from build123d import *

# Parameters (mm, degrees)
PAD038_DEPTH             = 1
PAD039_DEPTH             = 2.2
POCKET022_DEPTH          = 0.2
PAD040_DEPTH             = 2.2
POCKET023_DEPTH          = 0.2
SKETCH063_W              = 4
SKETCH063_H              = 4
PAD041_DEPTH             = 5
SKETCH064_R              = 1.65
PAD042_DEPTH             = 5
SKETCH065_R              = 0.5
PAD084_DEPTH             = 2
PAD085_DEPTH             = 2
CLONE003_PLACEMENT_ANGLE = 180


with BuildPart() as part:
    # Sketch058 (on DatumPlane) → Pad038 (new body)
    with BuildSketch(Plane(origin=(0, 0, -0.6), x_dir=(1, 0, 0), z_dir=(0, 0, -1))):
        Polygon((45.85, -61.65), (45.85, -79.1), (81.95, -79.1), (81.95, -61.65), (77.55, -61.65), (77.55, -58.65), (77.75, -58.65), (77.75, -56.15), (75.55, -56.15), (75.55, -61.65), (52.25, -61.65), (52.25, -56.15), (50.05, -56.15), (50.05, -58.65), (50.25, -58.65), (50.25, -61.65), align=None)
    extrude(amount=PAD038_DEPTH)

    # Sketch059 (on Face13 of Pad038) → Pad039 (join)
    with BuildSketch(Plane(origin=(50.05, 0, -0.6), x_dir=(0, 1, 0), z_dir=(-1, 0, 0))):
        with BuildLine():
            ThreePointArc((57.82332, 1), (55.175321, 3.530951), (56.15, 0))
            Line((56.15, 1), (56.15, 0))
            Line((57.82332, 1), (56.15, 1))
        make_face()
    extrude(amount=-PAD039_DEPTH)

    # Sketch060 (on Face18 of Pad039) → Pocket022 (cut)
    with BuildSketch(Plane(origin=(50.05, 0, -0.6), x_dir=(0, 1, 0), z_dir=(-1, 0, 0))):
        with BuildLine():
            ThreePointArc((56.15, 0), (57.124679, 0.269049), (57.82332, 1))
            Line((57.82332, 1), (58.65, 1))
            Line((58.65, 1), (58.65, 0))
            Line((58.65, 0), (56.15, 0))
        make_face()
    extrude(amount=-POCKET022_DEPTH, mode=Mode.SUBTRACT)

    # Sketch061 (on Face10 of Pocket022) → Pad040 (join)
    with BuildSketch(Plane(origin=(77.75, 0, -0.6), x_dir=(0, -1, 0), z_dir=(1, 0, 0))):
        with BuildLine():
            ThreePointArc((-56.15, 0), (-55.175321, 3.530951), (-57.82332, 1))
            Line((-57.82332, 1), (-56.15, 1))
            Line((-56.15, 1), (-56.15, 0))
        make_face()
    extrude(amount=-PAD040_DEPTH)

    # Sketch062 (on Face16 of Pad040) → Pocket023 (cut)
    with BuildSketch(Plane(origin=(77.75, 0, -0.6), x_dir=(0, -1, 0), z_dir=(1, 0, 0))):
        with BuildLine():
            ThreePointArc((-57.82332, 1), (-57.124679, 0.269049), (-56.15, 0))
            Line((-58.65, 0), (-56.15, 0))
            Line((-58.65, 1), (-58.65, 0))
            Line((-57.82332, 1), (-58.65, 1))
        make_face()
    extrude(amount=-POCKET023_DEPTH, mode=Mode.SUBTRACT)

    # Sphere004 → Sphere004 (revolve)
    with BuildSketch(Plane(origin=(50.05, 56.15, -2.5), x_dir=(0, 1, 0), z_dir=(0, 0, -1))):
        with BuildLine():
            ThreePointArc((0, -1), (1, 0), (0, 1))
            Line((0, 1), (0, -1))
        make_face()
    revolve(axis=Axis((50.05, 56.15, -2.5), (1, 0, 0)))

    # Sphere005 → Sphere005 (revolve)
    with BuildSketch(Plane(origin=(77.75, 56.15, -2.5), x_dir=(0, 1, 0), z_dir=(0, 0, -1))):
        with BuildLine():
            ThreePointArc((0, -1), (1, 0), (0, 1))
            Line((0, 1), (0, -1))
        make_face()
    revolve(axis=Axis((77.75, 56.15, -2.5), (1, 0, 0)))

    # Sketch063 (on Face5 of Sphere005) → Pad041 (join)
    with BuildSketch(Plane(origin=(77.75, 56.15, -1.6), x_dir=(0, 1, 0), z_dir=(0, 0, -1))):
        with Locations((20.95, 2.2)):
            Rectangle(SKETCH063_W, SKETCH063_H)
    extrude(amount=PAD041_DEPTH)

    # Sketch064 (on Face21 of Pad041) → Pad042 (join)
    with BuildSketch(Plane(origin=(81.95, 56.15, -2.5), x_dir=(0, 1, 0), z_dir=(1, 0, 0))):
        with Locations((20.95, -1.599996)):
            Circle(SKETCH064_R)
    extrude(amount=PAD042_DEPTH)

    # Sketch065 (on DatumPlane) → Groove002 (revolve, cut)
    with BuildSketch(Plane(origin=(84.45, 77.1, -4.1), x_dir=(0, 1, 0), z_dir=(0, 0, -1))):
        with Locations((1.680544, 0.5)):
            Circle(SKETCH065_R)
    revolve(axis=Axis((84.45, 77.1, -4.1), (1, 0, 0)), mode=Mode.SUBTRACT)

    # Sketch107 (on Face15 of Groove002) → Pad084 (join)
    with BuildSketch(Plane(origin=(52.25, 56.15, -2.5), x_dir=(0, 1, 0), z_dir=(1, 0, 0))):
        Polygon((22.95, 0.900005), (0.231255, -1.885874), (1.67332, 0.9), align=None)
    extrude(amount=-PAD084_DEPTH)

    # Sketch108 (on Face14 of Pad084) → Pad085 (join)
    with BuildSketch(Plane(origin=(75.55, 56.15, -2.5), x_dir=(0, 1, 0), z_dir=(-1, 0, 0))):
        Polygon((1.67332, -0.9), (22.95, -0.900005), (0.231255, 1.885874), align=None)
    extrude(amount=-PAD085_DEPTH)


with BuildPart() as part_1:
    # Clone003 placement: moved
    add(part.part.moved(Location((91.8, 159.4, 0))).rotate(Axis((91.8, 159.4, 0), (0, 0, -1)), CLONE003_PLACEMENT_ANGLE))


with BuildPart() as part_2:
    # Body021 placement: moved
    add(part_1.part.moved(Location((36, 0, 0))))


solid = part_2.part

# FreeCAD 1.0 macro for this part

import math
import FreeCAD as App
import Part
import Sketcher
from FreeCAD import Vector
Q = App.Units.Quantity


def add_polygon(sketch, points):
    """Adds a closed chain of lines whose ends are joined by coincident constraints."""
    first, n = sketch.GeometryCount, len(points)
    for a, b in zip(points, points[1:] + points[:1]):
        sketch.addGeometry(Part.LineSegment(App.Vector(*a, 0), App.Vector(*b, 0)), False)
    for i in range(n):
        sketch.addConstraint(Sketcher.Constraint("Coincident", first + i, 2, first + (i + 1) % n, 1))

doc = App.newDocument("Part")
body = doc.addObject("PartDesign::Body", "Body")

sketch1 = body.newObject("Sketcher::SketchObject", "Sketch")
sketch1.AttachmentSupport = (doc.getObject("XY_Plane"), [""])
sketch1.MapMode = "FlatFace"
sketch1.AttachmentOffset = App.Placement(Vector(0, 0, -0.6), App.Rotation())
add_polygon(sketch1, [(45.85, 61.65), (45.85, 79.1), (81.95, 79.1), (81.95, 61.65), (77.55, 61.65), (77.55, 58.65), (77.75, 58.65), (77.75, 56.15), (75.55, 56.15), (75.55, 61.65), (52.25, 61.65), (52.25, 56.15), (50.05, 56.15), (50.05, 58.65), (50.25, 58.65), (50.25, 61.65)])
sketch1.addConstraint([
    Sketcher.Constraint("Vertical", 0),
    Sketcher.Constraint("Horizontal", 1),
    Sketcher.Constraint("Vertical", 2),
    Sketcher.Constraint("Horizontal", 3),
    Sketcher.Constraint("Vertical", 4),
    Sketcher.Constraint("Horizontal", 5),
    Sketcher.Constraint("Vertical", 6),
    Sketcher.Constraint("Horizontal", 7),
    Sketcher.Constraint("Vertical", 8),
    Sketcher.Constraint("Horizontal", 9),
    Sketcher.Constraint("Vertical", 10),
    Sketcher.Constraint("Horizontal", 11),
    Sketcher.Constraint("Vertical", 12),
    Sketcher.Constraint("Horizontal", 13),
    Sketcher.Constraint("Vertical", 14),
    Sketcher.Constraint("Horizontal", 15),
    Sketcher.Constraint("Horizontal", 3, 2, 8, 2),
    Sketcher.Constraint("Horizontal", 7, 2, 10, 2),
    Sketcher.Constraint("Horizontal", 5, 2, 12, 2),
    Sketcher.Constraint("Horizontal", 9, 2, 14, 2),
    Sketcher.Constraint("Equal", 7, 11),
    Sketcher.Constraint("Equal", 5, 13),
    Sketcher.Constraint("Equal", 3, 15),
    Sketcher.Constraint("DistanceY", 4, 2, 4, 1, 3.0),
    Sketcher.Constraint("DistanceX", 1, 1, 1, 2, 36.1),
    Sketcher.Constraint("DistanceX", 3, 2, 3, 1, 4.4),
    Sketcher.Constraint("DistanceX", 5, 1, 5, 2, 0.2),
    Sketcher.Constraint("DistanceX", 7, 2, 7, 1, 2.2),
    Sketcher.Constraint("DistanceY", 6, 2, 6, 1, 2.5),
    Sketcher.Constraint("DistanceY", 0, 1, 0, 2, 17.45),
    Sketcher.Constraint("DistanceY", -1, 1, 0, 2, 79.1),
    Sketcher.Constraint("DistanceX", -1, 1, 0, 2, 45.85),
])
pad1 = body.newObject("PartDesign::Pad", "Pad")
pad1.Profile = sketch1
pad1.Length = 1
pad1.Reversed = True

sketch2 = body.newObject("Sketcher::SketchObject", "Sketch001")
sketch2.AttachmentSupport = (doc.getObject("YZ_Plane"), [""])
sketch2.MapMode = "FlatFace"
sketch2.AttachmentOffset = App.Placement(Vector(0, 0, 50.05), App.Rotation())
sketch2.addGeometry([
    Part.ArcOfCircle(Part.Circle(Vector(56.15, -2.5, 0), Vector(0, 0, 1), 1.9), math.radians(89.999998), math.radians(388.273714)),
    Part.LineSegment(Vector(56.15, -0.6, 0), Vector(56.15, -1.6, 0)),
    Part.LineSegment(Vector(56.15, -1.6, 0), Vector(57.82332, -1.6, 0)),
], False)
sketch2.addConstraint([
    Sketcher.Constraint("Coincident", 0, 1, 1, 1),
    Sketcher.Constraint("Coincident", 1, 2, 2, 1),
    Sketcher.Constraint("Coincident", 2, 2, 0, 2),
    Sketcher.Constraint("Vertical", 1),
    Sketcher.Constraint("Horizontal", 2),
    Sketcher.Constraint("Radius", 0, 1.9),
    Sketcher.Constraint("DistanceY", 1, 2, 1, 1, 1.0),
    Sketcher.Constraint("DistanceY", 0, 3, -1, 1, 2.5),
    Sketcher.Constraint("DistanceX", -1, 1, 0, 3, 56.15),
    Sketcher.Constraint("DistanceX", -1, 1, 0, 1, 56.15),
])
pad2 = body.newObject("PartDesign::Pad", "Pad001")
pad2.Profile = sketch2
pad2.Length = 2.2

sketch3 = body.newObject("Sketcher::SketchObject", "Sketch002")
sketch3.AttachmentSupport = (doc.getObject("YZ_Plane"), [""])
sketch3.MapMode = "FlatFace"
sketch3.AttachmentOffset = App.Placement(Vector(0, 0, 50.05), App.Rotation())
sketch3.addGeometry([
    Part.ArcOfCircle(Part.Circle(Vector(56.15, -2.499999, 0), Vector(0, 0, 1), 1.899999), math.radians(28.273702), math.radians(90.00001)),
    Part.LineSegment(Vector(56.15, -0.6, 0), Vector(58.65, -0.6, 0)),
    Part.LineSegment(Vector(58.65, -0.6, 0), Vector(58.65, -1.6, 0)),
    Part.LineSegment(Vector(58.65, -1.6, 0), Vector(57.82332, -1.6, 0)),
], False)
sketch3.addConstraint([
    Sketcher.Constraint("Tangent", 0, 2, 1, 1),
    Sketcher.Constraint("Coincident", 1, 2, 2, 1),
    Sketcher.Constraint("Coincident", 2, 2, 3, 1),
    Sketcher.Constraint("Coincident", 3, 2, 0, 1),
    Sketcher.Constraint("Horizontal", 1),
    Sketcher.Constraint("Vertical", 2),
    Sketcher.Constraint("Horizontal", 3),
    Sketcher.Constraint("Radius", 0, 1.899999),
    Sketcher.Constraint("DistanceY", 2, 2, 2, 1, 1.0),
    Sketcher.Constraint("DistanceX", 1, 1, 1, 2, 2.5),
    Sketcher.Constraint("DistanceY", 0, 3, -1, 1, 2.499999),
    Sketcher.Constraint("DistanceX", -1, 1, 0, 3, 56.15),
])
pocket1 = body.newObject("PartDesign::Pocket", "Pocket")
pocket1.Profile = sketch3
pocket1.Length = 0.2
pocket1.Reversed = True

sketch4 = body.newObject("Sketcher::SketchObject", "Sketch003")
sketch4.AttachmentSupport = (doc.getObject("YZ_Plane"), [""])
sketch4.MapMode = "FlatFace"
sketch4.AttachmentOffset = App.Placement(Vector(0, 0, 77.75), App.Rotation())
sketch4.addGeometry([
    Part.ArcOfCircle(Part.Circle(Vector(56.15, -2.5, 0), Vector(0, 0, 1), 1.9), math.radians(89.999998), math.radians(388.273714)),
    Part.LineSegment(Vector(57.82332, -1.6, 0), Vector(56.15, -1.6, 0)),
    Part.LineSegment(Vector(56.15, -1.6, 0), Vector(56.15, -0.6, 0)),
], False)
sketch4.addConstraint([
    Sketcher.Constraint("Coincident", 0, 2, 1, 1),
    Sketcher.Constraint("Coincident", 1, 2, 2, 1),
    Sketcher.Constraint("Coincident", 2, 2, 0, 1),
    Sketcher.Constraint("Horizontal", 1),
    Sketcher.Constraint("Vertical", 2),
    Sketcher.Constraint("Vertical", 0, 3, 1, 2),
    Sketcher.Constraint("Radius", 0, 1.9),
    Sketcher.Constraint("DistanceY", 2, 1, 2, 2, 1.0),
    Sketcher.Constraint("DistanceY", 0, 3, -1, 1, 2.5),
    Sketcher.Constraint("DistanceX", -1, 1, 0, 3, 56.15),
])
pad3 = body.newObject("PartDesign::Pad", "Pad002")
pad3.Profile = sketch4
pad3.Length = 2.2
pad3.Reversed = True

sketch5 = body.newObject("Sketcher::SketchObject", "Sketch004")
sketch5.AttachmentSupport = (doc.getObject("YZ_Plane"), [""])
sketch5.MapMode = "FlatFace"
sketch5.AttachmentOffset = App.Placement(Vector(0, 0, 77.75), App.Rotation())
sketch5.addGeometry([
    Part.ArcOfCircle(Part.Circle(Vector(56.15, -2.499999, 0), Vector(0, 0, 1), 1.899999), math.radians(28.273702), math.radians(90.00001)),
    Part.LineSegment(Vector(57.82332, -1.6, 0), Vector(58.65, -1.6, 0)),
    Part.LineSegment(Vector(58.65, -1.6, 0), Vector(58.65, -0.6, 0)),
    Part.LineSegment(Vector(58.65, -0.6, 0), Vector(56.15, -0.6, 0)),
], False)
sketch5.addConstraint([
    Sketcher.Constraint("Coincident", 0, 1, 1, 1),
    Sketcher.Constraint("Coincident", 1, 2, 2, 1),
    Sketcher.Constraint("Coincident", 2, 2, 3, 1),
    Sketcher.Constraint("Tangent", 3, 2, 0, 2),
    Sketcher.Constraint("Horizontal", 1),
    Sketcher.Constraint("Vertical", 2),
    Sketcher.Constraint("Horizontal", 3),
    Sketcher.Constraint("Radius", 0, 1.899999),
    Sketcher.Constraint("DistanceY", 2, 1, 2, 2, 1.0),
    Sketcher.Constraint("DistanceX", 3, 2, 3, 1, 2.5),
    Sketcher.Constraint("DistanceY", 0, 3, -1, 1, 2.499999),
    Sketcher.Constraint("DistanceX", -1, 1, 0, 3, 56.15),
])
pocket2 = body.newObject("PartDesign::Pocket", "Pocket001")
pocket2.Profile = sketch5
pocket2.Length = 0.2

sketch6 = body.newObject("Sketcher::SketchObject", "Sketch005")
sketch6.AttachmentSupport = (doc.getObject("XY_Plane"), [""])
sketch6.MapMode = "FlatFace"
sketch6.AttachmentOffset = App.Placement(Vector(0, 0, -2.5), App.Rotation())
sketch6.addGeometry([
    Part.ArcOfCircle(Part.Circle(Vector(50.05, 56.15, 0), Vector(0, 0, 1), 1), math.radians(0), math.radians(180)),
    Part.LineSegment(Vector(51.05, 56.15, 0), Vector(49.05, 56.15, 0)),
], False)
sketch6.addGeometry(Part.LineSegment(Vector(49.05, 56.15, 0), Vector(51.05, 56.15, 0)), True)
sketch6.addConstraint([
    Sketcher.Constraint("Coincident", 0, 1, 1, 1),
    Sketcher.Constraint("Coincident", 1, 2, 0, 2),
    Sketcher.Constraint("Horizontal", 1),
    Sketcher.Constraint("Horizontal", 2),
    Sketcher.Constraint("Coincident", 2, 1, 1, 2),
    Sketcher.Constraint("Equal", 1, 2),
    Sketcher.Constraint("Radius", 0, 1.0),
    Sketcher.Constraint("DistanceX", -1, 1, 0, 3, 50.05),
    Sketcher.Constraint("DistanceY", -1, 1, 0, 3, 56.15),
    Sketcher.Constraint("DistanceY", -1, 1, 0, 1, 56.15),
])
revolution = body.newObject("PartDesign::Revolution", "Revolution")
revolution.Profile = sketch6
revolution.ReferenceAxis = (sketch6, ["Axis0"])
revolution.Angle = 360

sketch7 = body.newObject("Sketcher::SketchObject", "Sketch006")
sketch7.AttachmentSupport = (doc.getObject("XY_Plane"), [""])
sketch7.MapMode = "FlatFace"
sketch7.AttachmentOffset = App.Placement(Vector(0, 0, -2.5), App.Rotation())
sketch7.addGeometry([
    Part.ArcOfCircle(Part.Circle(Vector(77.75, 56.15, 0), Vector(0, 0, 1), 1), math.radians(0), math.radians(180)),
    Part.LineSegment(Vector(78.75, 56.15, 0), Vector(76.75, 56.15, 0)),
], False)
sketch7.addGeometry(Part.LineSegment(Vector(76.75, 56.15, 0), Vector(78.75, 56.15, 0)), True)
sketch7.addConstraint([
    Sketcher.Constraint("Coincident", 0, 1, 1, 1),
    Sketcher.Constraint("Coincident", 1, 2, 0, 2),
    Sketcher.Constraint("Horizontal", 1),
    Sketcher.Constraint("Horizontal", 2),
    Sketcher.Constraint("Coincident", 2, 1, 1, 2),
    Sketcher.Constraint("Equal", 1, 2),
    Sketcher.Constraint("Radius", 0, 1.0),
    Sketcher.Constraint("DistanceX", -1, 1, 0, 3, 77.75),
    Sketcher.Constraint("DistanceY", -1, 1, 0, 3, 56.15),
    Sketcher.Constraint("DistanceY", -1, 1, 0, 1, 56.15),
])
revolution2 = body.newObject("PartDesign::Revolution", "Revolution001")
revolution2.Profile = sketch7
revolution2.ReferenceAxis = (sketch7, ["Axis0"])
revolution2.Angle = 360

sketch8 = body.newObject("Sketcher::SketchObject", "Sketch007")
sketch8.AttachmentSupport = (doc.getObject("XY_Plane"), [""])
sketch8.MapMode = "FlatFace"
sketch8.AttachmentOffset = App.Placement(Vector(0, 0, -1.6), App.Rotation())
add_polygon(sketch8, [(81.95, 75.1), (77.95, 75.1), (77.95, 79.1), (81.95, 79.1)])
sketch8.addConstraint([
    Sketcher.Constraint("Horizontal", 0),
    Sketcher.Constraint("Vertical", 1),
    Sketcher.Constraint("Horizontal", 2),
    Sketcher.Constraint("Vertical", 3),
    Sketcher.Constraint("Equal", 2, 1),
    Sketcher.Constraint("DistanceX", 0, 2, 0, 1, 4.0),
    Sketcher.Constraint("DistanceY", -1, 1, 0, 2, 75.1),
    Sketcher.Constraint("DistanceX", -1, 1, 0, 2, 77.95),
])
pad4 = body.newObject("PartDesign::Pad", "Pad003")
pad4.Profile = sketch8
pad4.Length = 5
pad4.Reversed = True

sketch9 = body.newObject("Sketcher::SketchObject", "Sketch008")
sketch9.AttachmentSupport = (doc.getObject("YZ_Plane"), [""])
sketch9.MapMode = "FlatFace"
sketch9.AttachmentOffset = App.Placement(Vector(0, 0, 81.95), App.Rotation())
sketch9.addGeometry(Part.Circle(Vector(77.1, -4.099996, 0), Vector(0, 0, 1), 1.65), False)
sketch9.addConstraint([
    Sketcher.Constraint("Diameter", 0, 3.3),
    Sketcher.Constraint("DistanceX", -1, 1, 0, 3, 77.1),
    Sketcher.Constraint("DistanceY", 0, 3, -1, 1, 4.099996),
])
pad5 = body.newObject("PartDesign::Pad", "Pad004")
pad5.Profile = sketch9
pad5.Length = 5

sketch10 = body.newObject("Sketcher::SketchObject", "Sketch009")
sketch10.AttachmentSupport = (doc.getObject("XY_Plane"), [""])
sketch10.MapMode = "FlatFace"
sketch10.AttachmentOffset = App.Placement(Vector(0, 0, -4.1), App.Rotation())
sketch10.addGeometry(Part.Circle(Vector(84.95, 78.780544, 0), Vector(0, 0, 1), 0.5), False)
sketch10.addGeometry(Part.LineSegment(Vector(84.95, 77.1, 0), Vector(94.95, 77.1, 0)), True)
sketch10.addConstraint([
    Sketcher.Constraint("Horizontal", 1),
    Sketcher.Constraint("Vertical", 0, 3, 1, 1),
    Sketcher.Constraint("Diameter", 0, 1.0),
    Sketcher.Constraint("DistanceX", 1, 1, 1, 2, 10.0),
    Sketcher.Constraint("DistanceY", -1, 1, 1, 1, 77.1),
    Sketcher.Constraint("DistanceX", -1, 1, 0, 3, 84.95),
    Sketcher.Constraint("DistanceY", -1, 1, 0, 3, 78.780544),
])
groove = body.newObject("PartDesign::Groove", "Groove")
groove.Profile = sketch10
groove.ReferenceAxis = (sketch10, ["Axis0"])
groove.Angle = 360

sketch11 = body.newObject("Sketcher::SketchObject", "Sketch010")
sketch11.AttachmentSupport = (doc.getObject("YZ_Plane"), [""])
sketch11.MapMode = "FlatFace"
sketch11.AttachmentOffset = App.Placement(Vector(0, 0, 52.25), App.Rotation())
add_polygon(sketch11, [(56.381255, -4.385874), (79.1, -1.599995), (57.82332, -1.6)])
sketch11.addConstraint([
    Sketcher.Constraint("Angle", 1, Q("-179.999987 deg")),
    Sketcher.Constraint("DistanceX", -1, 1, 0, 2, 79.1),
    Sketcher.Constraint("DistanceY", 1, 2, -1, 1, 1.6),
    Sketcher.Constraint("Distance", 1, 21.27668),
    Sketcher.Constraint("Distance", 2, 3.13698),
    Sketcher.Constraint("DistanceY", 2, 2, 0, 2, 2.785879),
])
pad6 = body.newObject("PartDesign::Pad", "Pad005")
pad6.Profile = sketch11
pad6.Length = 2
pad6.Reversed = True

sketch12 = body.newObject("Sketcher::SketchObject", "Sketch011")
sketch12.AttachmentSupport = (doc.getObject("YZ_Plane"), [""])
sketch12.MapMode = "FlatFace"
sketch12.AttachmentOffset = App.Placement(Vector(0, 0, 75.55), App.Rotation())
add_polygon(sketch12, [(57.82332, -1.6), (79.1, -1.599995), (56.381255, -4.385874)])
sketch12.addConstraint([
    Sketcher.Constraint("Angle", 0, Q("0.000013 deg")),
    Sketcher.Constraint("DistanceX", -1, 1, 0, 2, 79.1),
    Sketcher.Constraint("DistanceY", 2, 2, -1, 1, 1.6),
    Sketcher.Constraint("Distance", 0, 21.27668),
    Sketcher.Constraint("Distance", 2, 3.13698),
    Sketcher.Constraint("DistanceY", 1, 2, 0, 2, 2.785879),
])
pad7 = body.newObject("PartDesign::Pad", "Pad006")
pad7.Profile = sketch12
pad7.Length = 2
body2 = doc.addObject("PartDesign::Body", "Body001")
doc.recompute()

body.Placement = App.Placement(Vector(91.8, 159.4, 0), App.Rotation(Vector(0, 0, -1), 180))
boolean = body2.newObject("PartDesign::Boolean", "Boolean")
boolean.Type = "Fuse"
boolean.addObjects([body])
body3 = doc.addObject("PartDesign::Body", "Body002")
doc.recompute()

body2.Placement = App.Placement(Vector(36, 0, 0), App.Rotation(Vector(0, 0, 1), 0))
boolean2 = body3.newObject("PartDesign::Boolean", "Boolean001")
boolean2.Type = "Fuse"
boolean2.addObjects([body2])

doc.recompute()
